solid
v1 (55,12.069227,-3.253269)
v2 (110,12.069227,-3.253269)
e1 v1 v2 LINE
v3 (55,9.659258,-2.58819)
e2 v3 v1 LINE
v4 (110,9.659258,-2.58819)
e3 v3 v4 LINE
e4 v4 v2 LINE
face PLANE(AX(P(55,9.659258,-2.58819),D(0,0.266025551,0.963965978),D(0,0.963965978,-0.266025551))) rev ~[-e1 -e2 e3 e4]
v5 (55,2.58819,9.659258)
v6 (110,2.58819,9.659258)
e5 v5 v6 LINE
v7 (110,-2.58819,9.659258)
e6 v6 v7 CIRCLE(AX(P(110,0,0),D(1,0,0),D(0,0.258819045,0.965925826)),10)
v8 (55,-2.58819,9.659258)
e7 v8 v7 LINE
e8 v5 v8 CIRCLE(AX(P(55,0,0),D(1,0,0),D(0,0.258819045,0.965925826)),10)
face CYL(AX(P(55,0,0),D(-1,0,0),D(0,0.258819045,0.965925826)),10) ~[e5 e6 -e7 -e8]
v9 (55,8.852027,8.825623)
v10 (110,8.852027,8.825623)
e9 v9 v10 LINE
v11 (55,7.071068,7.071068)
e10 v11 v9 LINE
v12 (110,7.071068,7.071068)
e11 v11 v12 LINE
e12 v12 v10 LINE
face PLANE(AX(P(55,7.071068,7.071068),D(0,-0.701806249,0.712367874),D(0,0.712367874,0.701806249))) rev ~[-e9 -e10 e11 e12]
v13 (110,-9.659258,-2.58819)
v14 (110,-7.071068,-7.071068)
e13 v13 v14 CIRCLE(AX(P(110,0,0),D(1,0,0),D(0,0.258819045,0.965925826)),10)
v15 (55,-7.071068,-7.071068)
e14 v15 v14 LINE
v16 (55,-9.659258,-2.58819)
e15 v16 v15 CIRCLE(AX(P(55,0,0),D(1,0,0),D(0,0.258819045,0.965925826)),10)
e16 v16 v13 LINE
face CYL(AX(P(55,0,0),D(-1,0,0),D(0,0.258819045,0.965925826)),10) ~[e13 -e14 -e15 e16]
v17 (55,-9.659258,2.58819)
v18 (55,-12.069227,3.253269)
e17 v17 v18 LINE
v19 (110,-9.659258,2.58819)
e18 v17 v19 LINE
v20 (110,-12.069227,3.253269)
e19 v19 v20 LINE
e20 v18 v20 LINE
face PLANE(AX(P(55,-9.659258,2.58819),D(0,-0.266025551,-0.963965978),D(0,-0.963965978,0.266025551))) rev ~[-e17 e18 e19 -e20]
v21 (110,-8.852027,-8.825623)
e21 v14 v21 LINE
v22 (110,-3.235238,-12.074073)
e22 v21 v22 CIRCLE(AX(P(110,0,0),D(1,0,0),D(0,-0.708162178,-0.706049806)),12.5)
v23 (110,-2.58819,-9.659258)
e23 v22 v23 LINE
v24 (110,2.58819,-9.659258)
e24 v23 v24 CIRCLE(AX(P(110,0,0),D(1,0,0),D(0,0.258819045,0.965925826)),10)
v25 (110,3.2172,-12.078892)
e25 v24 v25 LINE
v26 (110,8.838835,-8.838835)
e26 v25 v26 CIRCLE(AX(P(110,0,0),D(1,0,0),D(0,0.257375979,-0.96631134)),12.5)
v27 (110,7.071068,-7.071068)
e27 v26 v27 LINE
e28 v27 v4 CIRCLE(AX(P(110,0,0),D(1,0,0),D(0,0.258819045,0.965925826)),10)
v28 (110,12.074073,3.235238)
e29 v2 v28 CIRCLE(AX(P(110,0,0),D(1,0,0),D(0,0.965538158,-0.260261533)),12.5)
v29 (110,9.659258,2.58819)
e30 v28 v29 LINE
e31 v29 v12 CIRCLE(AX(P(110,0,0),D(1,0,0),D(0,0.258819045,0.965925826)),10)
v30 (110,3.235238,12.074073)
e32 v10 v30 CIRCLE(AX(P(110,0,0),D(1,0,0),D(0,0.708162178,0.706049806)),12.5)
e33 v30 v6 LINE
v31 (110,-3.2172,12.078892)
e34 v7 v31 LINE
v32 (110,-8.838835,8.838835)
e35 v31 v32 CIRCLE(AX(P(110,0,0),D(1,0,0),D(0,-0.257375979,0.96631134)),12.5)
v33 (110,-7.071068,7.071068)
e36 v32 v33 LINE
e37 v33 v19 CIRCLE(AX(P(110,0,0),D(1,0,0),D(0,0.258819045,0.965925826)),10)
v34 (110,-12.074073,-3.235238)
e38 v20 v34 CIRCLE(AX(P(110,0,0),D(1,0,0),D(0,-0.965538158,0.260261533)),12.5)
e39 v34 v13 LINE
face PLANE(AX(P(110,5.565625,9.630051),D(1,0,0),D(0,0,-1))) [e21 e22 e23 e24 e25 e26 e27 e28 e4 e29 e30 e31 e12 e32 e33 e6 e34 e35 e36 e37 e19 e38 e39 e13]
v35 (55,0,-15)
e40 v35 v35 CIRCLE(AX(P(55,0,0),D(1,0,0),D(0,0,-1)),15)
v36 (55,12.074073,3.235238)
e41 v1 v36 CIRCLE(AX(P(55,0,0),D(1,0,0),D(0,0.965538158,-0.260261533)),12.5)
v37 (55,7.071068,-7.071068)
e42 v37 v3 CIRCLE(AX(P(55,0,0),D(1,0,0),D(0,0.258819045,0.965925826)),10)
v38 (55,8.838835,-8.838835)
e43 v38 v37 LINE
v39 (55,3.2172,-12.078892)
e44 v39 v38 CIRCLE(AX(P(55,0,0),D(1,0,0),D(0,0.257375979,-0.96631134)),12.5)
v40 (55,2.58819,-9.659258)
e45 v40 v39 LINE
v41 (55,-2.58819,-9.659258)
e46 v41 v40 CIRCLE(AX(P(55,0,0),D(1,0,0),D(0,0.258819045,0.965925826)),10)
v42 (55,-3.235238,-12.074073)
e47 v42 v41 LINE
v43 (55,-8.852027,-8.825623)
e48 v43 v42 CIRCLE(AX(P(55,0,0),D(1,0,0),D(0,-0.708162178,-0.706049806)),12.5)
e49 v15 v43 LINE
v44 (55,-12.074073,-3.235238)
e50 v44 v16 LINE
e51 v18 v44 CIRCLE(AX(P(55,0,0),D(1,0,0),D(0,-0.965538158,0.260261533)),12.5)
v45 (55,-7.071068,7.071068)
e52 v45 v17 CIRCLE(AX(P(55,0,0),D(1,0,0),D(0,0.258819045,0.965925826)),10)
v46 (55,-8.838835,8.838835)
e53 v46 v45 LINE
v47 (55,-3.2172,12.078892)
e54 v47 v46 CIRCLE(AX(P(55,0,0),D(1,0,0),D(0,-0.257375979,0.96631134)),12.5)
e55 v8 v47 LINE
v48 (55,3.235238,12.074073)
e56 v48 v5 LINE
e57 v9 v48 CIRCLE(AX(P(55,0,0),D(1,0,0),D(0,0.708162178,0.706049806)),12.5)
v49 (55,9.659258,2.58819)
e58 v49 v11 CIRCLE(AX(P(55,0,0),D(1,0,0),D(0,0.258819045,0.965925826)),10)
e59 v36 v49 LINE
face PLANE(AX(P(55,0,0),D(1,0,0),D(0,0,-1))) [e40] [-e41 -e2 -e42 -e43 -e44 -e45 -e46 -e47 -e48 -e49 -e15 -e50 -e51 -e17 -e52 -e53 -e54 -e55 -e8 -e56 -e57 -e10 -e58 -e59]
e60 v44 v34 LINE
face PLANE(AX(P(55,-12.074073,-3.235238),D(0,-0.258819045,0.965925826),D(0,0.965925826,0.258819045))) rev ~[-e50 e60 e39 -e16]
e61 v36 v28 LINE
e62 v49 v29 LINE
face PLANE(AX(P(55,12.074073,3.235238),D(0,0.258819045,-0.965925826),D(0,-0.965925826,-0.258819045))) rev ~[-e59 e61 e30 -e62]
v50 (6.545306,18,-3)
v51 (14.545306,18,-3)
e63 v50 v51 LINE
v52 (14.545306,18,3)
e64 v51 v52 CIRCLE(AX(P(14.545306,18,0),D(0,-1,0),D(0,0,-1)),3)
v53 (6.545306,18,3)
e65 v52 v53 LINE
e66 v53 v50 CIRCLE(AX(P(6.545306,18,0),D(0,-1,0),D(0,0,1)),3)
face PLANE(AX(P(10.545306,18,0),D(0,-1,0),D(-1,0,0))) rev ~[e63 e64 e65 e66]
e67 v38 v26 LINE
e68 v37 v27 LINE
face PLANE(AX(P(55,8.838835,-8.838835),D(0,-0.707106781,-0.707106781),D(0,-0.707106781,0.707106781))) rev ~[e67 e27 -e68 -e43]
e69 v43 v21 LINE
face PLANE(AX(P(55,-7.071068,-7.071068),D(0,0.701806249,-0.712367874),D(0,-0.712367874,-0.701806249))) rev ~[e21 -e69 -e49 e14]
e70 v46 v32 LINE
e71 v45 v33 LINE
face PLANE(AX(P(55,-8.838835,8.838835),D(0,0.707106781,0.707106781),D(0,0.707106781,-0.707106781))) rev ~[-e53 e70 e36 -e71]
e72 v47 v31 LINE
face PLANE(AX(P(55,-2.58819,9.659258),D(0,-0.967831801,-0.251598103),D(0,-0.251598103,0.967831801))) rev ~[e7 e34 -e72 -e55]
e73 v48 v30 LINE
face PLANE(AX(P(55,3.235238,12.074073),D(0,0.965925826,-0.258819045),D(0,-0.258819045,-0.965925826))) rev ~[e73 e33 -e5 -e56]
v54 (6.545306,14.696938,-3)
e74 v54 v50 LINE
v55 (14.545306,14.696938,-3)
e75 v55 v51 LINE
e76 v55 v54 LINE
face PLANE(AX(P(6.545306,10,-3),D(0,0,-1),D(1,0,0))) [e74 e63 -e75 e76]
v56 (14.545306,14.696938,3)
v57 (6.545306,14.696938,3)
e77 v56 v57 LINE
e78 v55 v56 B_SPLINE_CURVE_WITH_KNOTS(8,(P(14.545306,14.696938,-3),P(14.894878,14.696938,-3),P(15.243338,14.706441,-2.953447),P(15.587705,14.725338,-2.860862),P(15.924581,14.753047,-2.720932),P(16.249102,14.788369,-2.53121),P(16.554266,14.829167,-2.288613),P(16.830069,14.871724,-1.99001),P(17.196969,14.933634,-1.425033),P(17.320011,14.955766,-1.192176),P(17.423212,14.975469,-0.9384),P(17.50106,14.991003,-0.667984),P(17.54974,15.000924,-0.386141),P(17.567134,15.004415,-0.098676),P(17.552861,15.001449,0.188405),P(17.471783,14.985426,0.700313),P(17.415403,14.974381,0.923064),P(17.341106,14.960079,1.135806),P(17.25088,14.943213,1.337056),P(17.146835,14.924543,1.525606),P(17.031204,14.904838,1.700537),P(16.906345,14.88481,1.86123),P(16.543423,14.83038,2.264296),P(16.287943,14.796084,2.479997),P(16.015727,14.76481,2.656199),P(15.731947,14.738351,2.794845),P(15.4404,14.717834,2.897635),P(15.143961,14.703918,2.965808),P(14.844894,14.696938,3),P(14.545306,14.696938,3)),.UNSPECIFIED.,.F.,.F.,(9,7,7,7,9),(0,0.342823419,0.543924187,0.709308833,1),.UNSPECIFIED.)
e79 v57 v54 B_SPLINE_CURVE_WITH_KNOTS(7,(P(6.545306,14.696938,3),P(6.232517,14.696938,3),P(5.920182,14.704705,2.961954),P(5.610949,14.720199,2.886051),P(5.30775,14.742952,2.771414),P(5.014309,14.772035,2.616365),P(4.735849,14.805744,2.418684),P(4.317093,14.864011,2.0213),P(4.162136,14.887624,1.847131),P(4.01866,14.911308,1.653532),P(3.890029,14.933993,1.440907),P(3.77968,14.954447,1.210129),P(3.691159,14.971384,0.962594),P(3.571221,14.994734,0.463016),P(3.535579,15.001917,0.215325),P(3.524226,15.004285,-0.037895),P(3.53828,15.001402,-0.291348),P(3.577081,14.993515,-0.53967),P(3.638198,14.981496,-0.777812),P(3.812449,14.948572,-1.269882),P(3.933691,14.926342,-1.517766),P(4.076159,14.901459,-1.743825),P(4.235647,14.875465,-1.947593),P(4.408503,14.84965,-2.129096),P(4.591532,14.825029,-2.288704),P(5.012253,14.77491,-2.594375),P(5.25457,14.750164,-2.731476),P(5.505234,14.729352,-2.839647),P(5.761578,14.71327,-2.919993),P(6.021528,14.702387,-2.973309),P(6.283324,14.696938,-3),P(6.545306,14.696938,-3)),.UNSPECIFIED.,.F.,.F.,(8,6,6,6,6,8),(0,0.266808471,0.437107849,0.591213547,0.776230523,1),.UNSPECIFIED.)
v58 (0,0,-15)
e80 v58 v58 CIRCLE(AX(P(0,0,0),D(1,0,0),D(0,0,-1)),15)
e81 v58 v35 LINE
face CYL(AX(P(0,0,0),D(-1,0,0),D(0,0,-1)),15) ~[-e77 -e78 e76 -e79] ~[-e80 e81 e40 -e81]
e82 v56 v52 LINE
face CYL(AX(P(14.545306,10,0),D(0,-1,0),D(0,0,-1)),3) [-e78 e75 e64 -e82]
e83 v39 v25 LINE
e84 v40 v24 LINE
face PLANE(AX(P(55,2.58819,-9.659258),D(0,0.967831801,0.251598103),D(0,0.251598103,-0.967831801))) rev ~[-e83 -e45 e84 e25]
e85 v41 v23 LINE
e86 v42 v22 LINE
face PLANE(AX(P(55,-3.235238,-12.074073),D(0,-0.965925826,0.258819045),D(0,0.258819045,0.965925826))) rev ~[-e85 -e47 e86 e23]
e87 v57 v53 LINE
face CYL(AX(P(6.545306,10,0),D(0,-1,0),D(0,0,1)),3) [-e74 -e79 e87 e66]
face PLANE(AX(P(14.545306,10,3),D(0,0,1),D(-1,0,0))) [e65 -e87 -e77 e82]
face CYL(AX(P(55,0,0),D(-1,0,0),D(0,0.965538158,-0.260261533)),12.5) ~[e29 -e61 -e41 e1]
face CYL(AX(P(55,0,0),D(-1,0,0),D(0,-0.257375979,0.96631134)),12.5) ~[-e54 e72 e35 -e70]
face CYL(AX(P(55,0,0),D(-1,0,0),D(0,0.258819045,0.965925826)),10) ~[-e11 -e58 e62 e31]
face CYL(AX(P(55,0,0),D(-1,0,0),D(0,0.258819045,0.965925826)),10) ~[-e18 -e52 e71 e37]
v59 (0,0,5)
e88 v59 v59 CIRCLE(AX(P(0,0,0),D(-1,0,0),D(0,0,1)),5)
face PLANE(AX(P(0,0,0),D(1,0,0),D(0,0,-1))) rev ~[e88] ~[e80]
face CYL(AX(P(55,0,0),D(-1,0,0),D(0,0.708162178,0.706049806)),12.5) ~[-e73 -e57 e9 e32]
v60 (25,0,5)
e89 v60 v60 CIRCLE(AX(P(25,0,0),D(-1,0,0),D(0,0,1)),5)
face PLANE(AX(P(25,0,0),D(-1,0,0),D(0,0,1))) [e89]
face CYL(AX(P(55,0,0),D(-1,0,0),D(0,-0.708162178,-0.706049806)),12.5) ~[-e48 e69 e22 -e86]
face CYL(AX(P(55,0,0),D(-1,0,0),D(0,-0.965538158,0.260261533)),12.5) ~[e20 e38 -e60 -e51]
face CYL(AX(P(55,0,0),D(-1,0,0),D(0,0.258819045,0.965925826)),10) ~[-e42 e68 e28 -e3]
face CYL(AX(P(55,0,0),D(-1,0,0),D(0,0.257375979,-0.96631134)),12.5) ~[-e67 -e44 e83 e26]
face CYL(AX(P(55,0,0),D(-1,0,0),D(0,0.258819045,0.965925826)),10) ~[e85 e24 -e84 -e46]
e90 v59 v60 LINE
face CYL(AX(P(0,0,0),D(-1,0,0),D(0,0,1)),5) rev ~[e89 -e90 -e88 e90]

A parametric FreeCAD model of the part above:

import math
import FreeCAD as App
import Part
import Sketcher
Q = App.Units.Quantity

doc = App.newDocument("Part")
params = doc.addObject("Spreadsheet::Sheet", "Params")
for row, (alias, value) in enumerate([
    ("sketch1_diameter", "30 mm"),
    ("pad1_length", "55 mm"),
    ("sketch2_radius", "10 mm"),
    ("sketch2_radius2", "12.5 mm"),
    ("pad2_length", "55 mm"),
    ("sketch3_diameter", "10 mm"),
    ("pocket1_length", "25 mm"),
    ("sketch4_radius", "3 mm"),
    ("sketch4_width", "8 mm"),
    ("pad3_length", "8 mm"),
], start=1):
    params.set(f"A{row}", alias)
    params.set(f"B{row}", "=" + value)
    params.setAlias(f"B{row}", alias)

body = doc.addObject("PartDesign::Body", "Body")

# Sketch on YZ plane
sketch1 = doc.addObject("Sketcher::SketchObject", "Sketch")
body.addObject(sketch1)
sketch1.AttachmentSupport = (doc.YZ_Plane, [""])
sketch1.MapMode = "FlatFace"
sketch1.addGeometry(Part.Circle(App.Vector(0, 0, 0), App.Vector(0, 0, 1), 15), False)
sketch1.addConstraint([
    Sketcher.Constraint("Coincident", 0, 3, -1, 1),
    Sketcher.Constraint("Diameter", 0, 30.0),
])
sketch1.setExpression("Constraints[1]", "Params.sketch1_diameter")
pad1 = doc.addObject("PartDesign::Pad", "Pad")
body.addObject(pad1)
pad1.Profile = sketch1
pad1.setExpression("Length", "Params.pad1_length")

# Sketch on YZ plane
sketch2 = doc.addObject("Sketcher::SketchObject", "Sketch001")
body.addObject(sketch2)
sketch2.AttachmentSupport = (doc.YZ_Plane, [""])
sketch2.MapMode = "FlatFace"
sketch2.AttachmentOffset = App.Placement(App.Vector(0, 0, 55), App.Rotation())
sketch2.addGeometry([
    Part.LineSegment(App.Vector(7.071068, 7.071068, 0), App.Vector(8.852027, 8.825623, 0)),  # 0
    Part.ArcOfCircle(Part.Circle(App.Vector(0, 0, 0), App.Vector(0, 0, 1), 12.5), math.radians(44.914419), math.radians(75)),  # 1
    Part.LineSegment(App.Vector(3.235238, 12.074073, 0), App.Vector(2.58819, 9.659258, 0)),  # 2
    Part.ArcOfCircle(Part.Circle(App.Vector(0, 0, 0), App.Vector(0, 0, 1), 10), math.radians(75), math.radians(105)),  # 3
    Part.LineSegment(App.Vector(-2.58819, 9.659258, 0), App.Vector(-3.2172, 12.078892, 0)),  # 4
    Part.ArcOfCircle(Part.Circle(App.Vector(0, 0, 0), App.Vector(0, 0, 1), 12.5), math.radians(104.914419), math.radians(135)),  # 5
    Part.LineSegment(App.Vector(-8.838835, 8.838835, 0), App.Vector(-7.071068, 7.071068, 0)),  # 6
    Part.ArcOfCircle(Part.Circle(App.Vector(0, 0, 0), App.Vector(0, 0, 1), 10), math.radians(135), math.radians(165)),  # 7
    Part.LineSegment(App.Vector(-9.659258, 2.58819, 0), App.Vector(-12.069227, 3.253269, 0)),  # 8
    Part.ArcOfCircle(Part.Circle(App.Vector(0, 0, 0), App.Vector(0, 0, 1), 12.5), math.radians(164.914419), math.radians(195)),  # 9
    Part.LineSegment(App.Vector(-12.074073, -3.235238, 0), App.Vector(-9.659258, -2.58819, 0)),  # 10
    Part.ArcOfCircle(Part.Circle(App.Vector(0, 0, 0), App.Vector(0, 0, 1), 10), math.radians(-165), math.radians(-135)),  # 11
    Part.LineSegment(App.Vector(-7.071068, -7.071068, 0), App.Vector(-8.852027, -8.825623, 0)),  # 12
    Part.ArcOfCircle(Part.Circle(App.Vector(0, 0, 0), App.Vector(0, 0, 1), 12.5), math.radians(-135.085581), math.radians(-105)),  # 13
    Part.LineSegment(App.Vector(-3.235238, -12.074073, 0), App.Vector(-2.58819, -9.659258, 0)),  # 14
    Part.ArcOfCircle(Part.Circle(App.Vector(0, 0, 0), App.Vector(0, 0, 1), 10), math.radians(-105), math.radians(-75)),  # 15
    Part.LineSegment(App.Vector(2.58819, -9.659258, 0), App.Vector(3.2172, -12.078892, 0)),  # 16
    Part.ArcOfCircle(Part.Circle(App.Vector(0, 0, 0), App.Vector(0, 0, 1), 12.5), math.radians(-75.085581), math.radians(-45)),  # 17
    Part.LineSegment(App.Vector(8.838835, -8.838835, 0), App.Vector(7.071068, -7.071068, 0)),  # 18
    Part.ArcOfCircle(Part.Circle(App.Vector(0, 0, 0), App.Vector(0, 0, 1), 10), math.radians(-45), math.radians(-15)),  # 19
    Part.LineSegment(App.Vector(9.659258, -2.58819, 0), App.Vector(12.069227, -3.253269, 0)),  # 20
    Part.ArcOfCircle(Part.Circle(App.Vector(0, 0, 0), App.Vector(0, 0, 1), 12.5), math.radians(-15.085581), math.radians(15)),  # 21
    Part.LineSegment(App.Vector(12.074073, 3.235238, 0), App.Vector(9.659258, 2.58819, 0)),  # 22
    Part.ArcOfCircle(Part.Circle(App.Vector(0, 0, 0), App.Vector(0, 0, 1), 10), math.radians(15), math.radians(45)),  # 23
], False)
sketch2.addConstraint([
    Sketcher.Constraint("Coincident", 0, 2, 1, 1),
    Sketcher.Constraint("Coincident", 1, 2, 2, 1),
    Sketcher.Constraint("Coincident", 2, 2, 3, 1),
    Sketcher.Constraint("Coincident", 3, 2, 4, 1),
    Sketcher.Constraint("Coincident", 4, 2, 5, 1),
    Sketcher.Constraint("Coincident", 5, 2, 6, 1),
    Sketcher.Constraint("Coincident", 6, 2, 7, 1),
    Sketcher.Constraint("Coincident", 7, 2, 8, 1),
    Sketcher.Constraint("Coincident", 8, 2, 9, 1),
    Sketcher.Constraint("Coincident", 9, 2, 10, 1),
    Sketcher.Constraint("Coincident", 10, 2, 11, 1),
    Sketcher.Constraint("Coincident", 11, 2, 12, 1),
    Sketcher.Constraint("Coincident", 12, 2, 13, 1),
    Sketcher.Constraint("Coincident", 13, 2, 14, 1),
    Sketcher.Constraint("Coincident", 14, 2, 15, 1),
    Sketcher.Constraint("Coincident", 15, 2, 16, 1),
    Sketcher.Constraint("Coincident", 16, 2, 17, 1),
    Sketcher.Constraint("Coincident", 17, 2, 18, 1),
    Sketcher.Constraint("Coincident", 18, 2, 19, 1),
    Sketcher.Constraint("Coincident", 19, 2, 20, 1),
    Sketcher.Constraint("Coincident", 20, 2, 21, 1),
    Sketcher.Constraint("Coincident", 21, 2, 22, 1),
    Sketcher.Constraint("Coincident", 22, 2, 23, 1),
    Sketcher.Constraint("Coincident", 23, 2, 0, 1),
    Sketcher.Constraint("Coincident", 1, 3, -1, 1),
    Sketcher.Constraint("Coincident", 3, 3, -1, 1),
    Sketcher.Constraint("Coincident", 5, 3, -1, 1),
    Sketcher.Constraint("Coincident", 7, 3, -1, 1),
    Sketcher.Constraint("Coincident", 9, 3, -1, 1),
    Sketcher.Constraint("Coincident", 11, 3, -1, 1),
    Sketcher.Constraint("Coincident", 13, 3, -1, 1),
    Sketcher.Constraint("Coincident", 15, 3, -1, 1),
    Sketcher.Constraint("Coincident", 17, 3, -1, 1),
    Sketcher.Constraint("Coincident", 19, 3, -1, 1),
    Sketcher.Constraint("Coincident", 21, 3, -1, 1),
    Sketcher.Constraint("Coincident", 23, 3, -1, 1),
    Sketcher.Constraint("Equal", 1, 5),
    Sketcher.Constraint("Equal", 3, 7),
    Sketcher.Constraint("Equal", 5, 9),
    Sketcher.Constraint("Equal", 7, 11),
    Sketcher.Constraint("Equal", 9, 13),
    Sketcher.Constraint("Equal", 11, 15),
    Sketcher.Constraint("Equal", 13, 17),
    Sketcher.Constraint("Equal", 15, 19),
    Sketcher.Constraint("Equal", 17, 21),
    Sketcher.Constraint("Equal", 19, 23),
    Sketcher.Constraint("Parallel", 0, 12),
    Sketcher.Constraint("Parallel", 2, 14),
    Sketcher.Constraint("Parallel", 4, 16),
    Sketcher.Constraint("Parallel", 6, 18),
    Sketcher.Constraint("Parallel", 8, 20),
    Sketcher.Constraint("Parallel", 10, 22),
    Sketcher.Constraint("Horizontal", 2, 2, 3, 2),
    Sketcher.Constraint("Horizontal", 14, 2, 15, 2),
    Sketcher.Constraint("Horizontal", 11, 2, 18, 2),
    Sketcher.Constraint("Horizontal", 10, 2, 19, 2),
    Sketcher.Constraint("Horizontal", 7, 2, 22, 2),
    Sketcher.Constraint("Horizontal", 6, 2, 23, 2),
    Sketcher.Constraint("Vertical", 7, 2, 10, 2),
    Sketcher.Constraint("Vertical", 6, 2, 11, 2),
    Sketcher.Constraint("Vertical", 3, 2, 14, 2),
    Sketcher.Constraint("Equal", 0, 4),
    Sketcher.Constraint("Equal", 4, 8),
    Sketcher.Constraint("Radius", 3, 10.0),
    Sketcher.Constraint("Radius", 1, 12.5),
    Sketcher.Constraint("Angle", 2, Q("-105 deg")),
    Sketcher.Constraint("Angle", 6, Q("-45 deg")),
    Sketcher.Constraint("Angle", 10, Q("15 deg")),
    Sketcher.Constraint("DistanceX", 4, 2, -1, 1, 3.2172),
    Sketcher.Constraint("DistanceY", 8, 2, 6, 2, 3.817799),
    Sketcher.Constraint("DistanceX", -1, 1, 1, 2, 3.235238),
    Sketcher.Constraint("DistanceX", 7, 2, -1, 1, 9.659258),
])
sketch2.setExpression("Constraints[63]", "Params.sketch2_radius")
sketch2.setExpression("Constraints[64]", "Params.sketch2_radius2")
pad2 = doc.addObject("PartDesign::Pad", "Pad001")
body.addObject(pad2)
pad2.Profile = sketch2
pad2.setExpression("Length", "Params.pad2_length")

# Sketch on YZ plane
sketch3 = doc.addObject("Sketcher::SketchObject", "Sketch002")
body.addObject(sketch3)
sketch3.AttachmentSupport = (doc.YZ_Plane, [""])
sketch3.MapMode = "FlatFace"
sketch3.addGeometry(Part.Circle(App.Vector(0, 0, 0), App.Vector(0, 0, 1), 5), False)
sketch3.addConstraint([
    Sketcher.Constraint("Coincident", 0, 3, -1, 1),
    Sketcher.Constraint("Diameter", 0, 10.0),
])
sketch3.setExpression("Constraints[1]", "Params.sketch3_diameter")
pocket1 = doc.addObject("PartDesign::Pocket", "Pocket")
body.addObject(pocket1)
pocket1.Profile = sketch3
pocket1.setExpression("Length", "Params.pocket1_length")
pocket1.Reversed = True

# Sketch on XZ plane
sketch4 = doc.addObject("Sketcher::SketchObject", "Sketch003")
body.addObject(sketch4)
sketch4.AttachmentSupport = (doc.XZ_Plane, [""])
sketch4.MapMode = "FlatFace"
sketch4.AttachmentOffset = App.Placement(App.Vector(0, 0, -10), App.Rotation())
sketch4.addGeometry([
    Part.LineSegment(App.Vector(14.545306, -3, 0), App.Vector(6.545306, -3, 0)),
    Part.ArcOfCircle(Part.Circle(App.Vector(6.545306, 0, 0), App.Vector(0, 0, 1), 3), math.radians(90), math.radians(270)),
    Part.LineSegment(App.Vector(6.545306, 3, 0), App.Vector(14.545306, 3, 0)),
    Part.ArcOfCircle(Part.Circle(App.Vector(14.545306, 0, 0), App.Vector(0, 0, 1), 3), math.radians(-90), math.radians(90)),
], False)
sketch4.addConstraint([
    Sketcher.Constraint("Tangent", 0, 2, 1, 2),
    Sketcher.Constraint("Tangent", 1, 1, 2, 1),
    Sketcher.Constraint("Tangent", 2, 2, 3, 2),
    Sketcher.Constraint("Tangent", 3, 1, 0, 1),
    Sketcher.Constraint("Horizontal", 0),
    Sketcher.Constraint("Horizontal", 2),
    Sketcher.Constraint("PointOnObject", 1, 3, -1),
    Sketcher.Constraint("Radius", 1, 3.0),
    Sketcher.Constraint("DistanceX", 0, 2, 0, 1, 8.0),
    Sketcher.Constraint("DistanceX", -1, 1, 1, 3, 6.545306),
])
sketch4.setExpression("Constraints[7]", "Params.sketch4_radius")
sketch4.setExpression("Constraints[8]", "Params.sketch4_width")
pad3 = doc.addObject("PartDesign::Pad", "Pad002")
body.addObject(pad3)
pad3.Profile = sketch4
pad3.setExpression("Length", "Params.pad3_length")
pad3.Reversed = True

doc.recompute()
